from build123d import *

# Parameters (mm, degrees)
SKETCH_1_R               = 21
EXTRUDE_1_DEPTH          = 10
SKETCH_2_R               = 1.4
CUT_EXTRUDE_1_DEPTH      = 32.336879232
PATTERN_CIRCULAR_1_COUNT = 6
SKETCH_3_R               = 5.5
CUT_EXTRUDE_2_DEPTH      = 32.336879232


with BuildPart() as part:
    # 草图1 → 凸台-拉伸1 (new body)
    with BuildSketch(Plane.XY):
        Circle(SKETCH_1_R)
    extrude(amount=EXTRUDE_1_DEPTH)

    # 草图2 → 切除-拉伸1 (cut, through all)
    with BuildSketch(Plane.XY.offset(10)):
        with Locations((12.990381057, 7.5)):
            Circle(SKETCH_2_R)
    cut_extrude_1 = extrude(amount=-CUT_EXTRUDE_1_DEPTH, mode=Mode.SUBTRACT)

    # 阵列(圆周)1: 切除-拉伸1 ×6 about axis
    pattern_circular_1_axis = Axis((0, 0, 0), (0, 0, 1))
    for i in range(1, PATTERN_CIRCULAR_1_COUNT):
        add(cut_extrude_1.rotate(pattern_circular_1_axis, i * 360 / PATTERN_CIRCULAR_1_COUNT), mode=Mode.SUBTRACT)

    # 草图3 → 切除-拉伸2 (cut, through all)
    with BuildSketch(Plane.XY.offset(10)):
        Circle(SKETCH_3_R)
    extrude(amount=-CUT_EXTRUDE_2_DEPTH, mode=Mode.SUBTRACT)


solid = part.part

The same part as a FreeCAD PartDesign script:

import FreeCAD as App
import Part
import Sketcher
from FreeCAD import Vector

doc = App.newDocument("Part")
body = doc.addObject("PartDesign::Body", "Body")

sketch1 = doc.addObject("Sketcher::SketchObject", "Sketch")
body.addObject(sketch1)
sketch1.AttachmentSupport = (doc.XY_Plane, [""])
sketch1.MapMode = "FlatFace"
sketch1.addGeometry(Part.Circle(Vector(0, 0, 0), Vector(0, 0, 1), 21), False)
sketch1.addConstraint([
    Sketcher.Constraint("Coincident", 0, 3, -1, 1),
    Sketcher.Constraint("Diameter", 0, 42.0),
])
pad1 = doc.addObject("PartDesign::Pad", "Pad")
body.addObject(pad1)
pad1.Profile = sketch1
pad1.Length = 10

sketch2 = doc.addObject("Sketcher::SketchObject", "Sketch001")
body.addObject(sketch2)
sketch2.AttachmentSupport = (doc.XY_Plane, [""])
sketch2.MapMode = "FlatFace"
sketch2.AttachmentOffset = App.Placement(Vector(0, 0, 10), App.Rotation())
sketch2.addGeometry(Part.Circle(Vector(12.990381, 7.5, 0), Vector(0, 0, 1), 1.4), False)
sketch2.addConstraint([
    Sketcher.Constraint("Diameter", 0, 2.8),
    Sketcher.Constraint("DistanceY", -1, 1, 0, 3, 7.5),
    Sketcher.Constraint("DistanceX", -1, 1, 0, 3, 12.990381),
])
pocket1 = doc.addObject("PartDesign::Pocket", "Pocket")
body.addObject(pocket1)
pocket1.Profile = sketch2
pocket1.Type = "ThroughAll"
doc.recompute()

polarpattern = doc.addObject("PartDesign::PolarPattern", "PolarPattern")
body.addObject(polarpattern)
polarpattern.Originals = [pocket1]
polarpattern.Axis = (doc.Z_Axis, [""])
polarpattern.Angle = 360
polarpattern.Occurrences = 6
body.Tip = polarpattern

sketch3 = doc.addObject("Sketcher::SketchObject", "Sketch002")
body.addObject(sketch3)
sketch3.AttachmentSupport = (doc.XY_Plane, [""])
sketch3.MapMode = "FlatFace"
sketch3.AttachmentOffset = App.Placement(Vector(0, 0, 10), App.Rotation())
sketch3.addGeometry(Part.Circle(Vector(0, 0, 0), Vector(0, 0, 1), 5.5), False)
sketch3.addConstraint([
    Sketcher.Constraint("Coincident", 0, 3, -1, 1),
    Sketcher.Constraint("Diameter", 0, 11.0),
])
pocket2 = doc.addObject("PartDesign::Pocket", "Pocket001")
body.addObject(pocket2)
pocket2.Profile = sketch3
pocket2.Type = "ThroughAll"

doc.recompute()
